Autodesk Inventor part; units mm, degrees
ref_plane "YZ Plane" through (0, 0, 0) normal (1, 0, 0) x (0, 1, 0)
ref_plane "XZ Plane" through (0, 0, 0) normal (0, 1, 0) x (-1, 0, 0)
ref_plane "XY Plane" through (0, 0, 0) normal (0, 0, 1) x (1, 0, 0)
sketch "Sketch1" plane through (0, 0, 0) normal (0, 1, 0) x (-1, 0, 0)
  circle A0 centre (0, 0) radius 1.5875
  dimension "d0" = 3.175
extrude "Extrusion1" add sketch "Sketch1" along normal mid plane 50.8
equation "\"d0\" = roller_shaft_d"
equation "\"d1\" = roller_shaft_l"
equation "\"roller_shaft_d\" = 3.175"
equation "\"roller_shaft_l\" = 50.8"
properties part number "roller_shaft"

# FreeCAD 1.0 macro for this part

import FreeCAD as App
import Part
import Sketcher
Q = App.Units.Quantity

doc = App.newDocument("Part")
body = doc.addObject("PartDesign::Body", "Body")

sketch1 = body.newObject("Sketcher::SketchObject", "Sketch")
sketch1.AttachmentSupport = (doc.getObject("XZ_Plane"), [""])
sketch1.MapMode = "FlatFace"
sketch1.addGeometry(Part.Circle(App.Vector(0, 0, 0), App.Vector(0, 0, 1), 1.5875), False)
sketch1.addConstraint(Sketcher.Constraint("Coincident", 0, 3, -1, 1))
sketch1.addConstraint(Sketcher.Constraint("Diameter", 0, Q("0.125 in")))
pad1 = body.newObject("PartDesign::Pad", "Pad")
pad1.Profile = sketch1
pad1.Length = Q("2 in")
pad1.Midplane = True

doc.recompute()
